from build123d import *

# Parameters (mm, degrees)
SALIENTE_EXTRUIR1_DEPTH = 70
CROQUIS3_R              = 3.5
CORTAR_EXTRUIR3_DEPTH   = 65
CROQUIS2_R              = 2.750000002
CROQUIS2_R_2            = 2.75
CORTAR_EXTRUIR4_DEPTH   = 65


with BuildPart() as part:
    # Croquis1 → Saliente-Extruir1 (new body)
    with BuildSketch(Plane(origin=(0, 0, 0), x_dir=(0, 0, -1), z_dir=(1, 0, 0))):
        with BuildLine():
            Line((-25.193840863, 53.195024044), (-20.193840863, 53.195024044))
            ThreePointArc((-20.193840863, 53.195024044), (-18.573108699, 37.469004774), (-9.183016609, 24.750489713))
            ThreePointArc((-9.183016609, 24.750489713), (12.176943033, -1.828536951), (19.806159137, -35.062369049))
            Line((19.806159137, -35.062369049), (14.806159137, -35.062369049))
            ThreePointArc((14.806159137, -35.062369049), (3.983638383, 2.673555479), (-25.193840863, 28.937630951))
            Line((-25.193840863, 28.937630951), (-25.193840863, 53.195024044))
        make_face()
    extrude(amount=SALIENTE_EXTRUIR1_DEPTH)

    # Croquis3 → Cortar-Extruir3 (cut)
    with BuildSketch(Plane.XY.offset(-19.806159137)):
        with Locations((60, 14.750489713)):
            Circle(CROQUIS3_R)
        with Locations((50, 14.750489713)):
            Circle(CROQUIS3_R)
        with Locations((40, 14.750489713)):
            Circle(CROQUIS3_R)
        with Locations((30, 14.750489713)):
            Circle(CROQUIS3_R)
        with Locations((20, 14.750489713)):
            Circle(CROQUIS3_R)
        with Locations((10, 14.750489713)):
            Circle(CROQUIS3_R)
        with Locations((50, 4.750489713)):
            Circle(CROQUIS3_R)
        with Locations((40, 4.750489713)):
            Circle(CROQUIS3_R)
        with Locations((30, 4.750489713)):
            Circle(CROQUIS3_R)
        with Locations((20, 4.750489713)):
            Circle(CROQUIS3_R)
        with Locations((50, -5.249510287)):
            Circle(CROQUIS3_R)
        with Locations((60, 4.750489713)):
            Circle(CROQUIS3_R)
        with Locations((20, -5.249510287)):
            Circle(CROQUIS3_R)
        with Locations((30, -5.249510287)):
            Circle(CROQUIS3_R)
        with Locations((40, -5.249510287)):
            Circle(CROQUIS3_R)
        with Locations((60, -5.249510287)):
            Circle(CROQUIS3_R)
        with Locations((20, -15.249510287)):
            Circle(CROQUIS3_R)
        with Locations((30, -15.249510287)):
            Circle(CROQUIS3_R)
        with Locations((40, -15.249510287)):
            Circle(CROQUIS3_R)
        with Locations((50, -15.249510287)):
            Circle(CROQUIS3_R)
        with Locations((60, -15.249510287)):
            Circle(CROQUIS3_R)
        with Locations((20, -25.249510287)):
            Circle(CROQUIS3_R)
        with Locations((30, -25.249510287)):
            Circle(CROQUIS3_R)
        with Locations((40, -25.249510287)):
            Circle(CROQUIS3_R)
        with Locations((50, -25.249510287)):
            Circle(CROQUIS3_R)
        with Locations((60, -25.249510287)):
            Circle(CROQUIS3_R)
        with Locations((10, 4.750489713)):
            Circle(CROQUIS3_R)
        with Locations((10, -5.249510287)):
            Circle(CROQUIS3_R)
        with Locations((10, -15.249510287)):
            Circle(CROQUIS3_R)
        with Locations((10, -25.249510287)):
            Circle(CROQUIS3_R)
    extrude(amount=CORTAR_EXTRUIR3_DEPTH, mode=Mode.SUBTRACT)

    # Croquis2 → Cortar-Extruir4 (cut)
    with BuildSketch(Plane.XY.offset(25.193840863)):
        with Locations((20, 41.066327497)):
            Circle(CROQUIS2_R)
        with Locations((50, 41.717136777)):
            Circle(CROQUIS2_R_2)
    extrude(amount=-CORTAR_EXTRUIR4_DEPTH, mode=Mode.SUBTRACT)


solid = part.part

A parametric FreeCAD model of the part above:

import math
import FreeCAD as App
import Part
import Sketcher

V = App.Vector
Q = App.Units.Quantity

doc = App.newDocument("Part")
params = doc.addObject("Spreadsheet::Sheet", "Params")
for row, (alias, value) in enumerate([
    ("sketch1_radius", "30 mm"),
    ("sketch1_radius2", "71.2 mm"),
    ("sketch1_radius3", "76.2 mm"),
    ("pad1_length", "70 mm"),
    ("sketch2_diameter", "7 mm"),
    ("pocket1_length", "65 mm"),
    ("sketch3_diameter", "5.5 mm"),
    ("pocket2_length", "65 mm"),
], start=1):
    params.set(f"A{row}", alias)
    params.set(f"B{row}", "=" + value)
    params.setAlias(f"B{row}", alias)

body = doc.addObject("PartDesign::Body", "Body")

sketch1 = body.newObject("Sketcher::SketchObject", "Sketch")
sketch1.AttachmentSupport = (doc.getObject("YZ_Plane"), [""])
sketch1.MapMode = "FlatFace"
sketch1.addGeometry(Part.LineSegment(V(53, 20, 0), V(53, 25, 0)), False)
sketch1.addGeometry(Part.LineSegment(V(53, 25, 0), V(29, 25, 0)), False)
sketch1.addGeometry(Part.ArcOfCircle(Part.Circle(V(-35, 56, 0), V(0, 0, 1), 71), math.radians(-90), math.radians(-26)), False)
sketch1.addGeometry(Part.LineSegment(V(-35, -15, 0), V(-35, -20, 0)), False)
sketch1.addGeometry(Part.ArcOfCircle(Part.Circle(V(-35, 56, 0), V(0, 0, 1), 76), math.radians(-90), math.radians(-38)), False)
sketch1.addGeometry(Part.ArcOfCircle(Part.Circle(V(48, -9, 0), V(0, 0, 1), 30), math.radians(81), math.radians(142)), False)
sketch1.addConstraint(Sketcher.Constraint("Coincident", 0, 2, 1, 1))
sketch1.addConstraint(Sketcher.Constraint("Coincident", 1, 2, 2, 2))
sketch1.addConstraint(Sketcher.Constraint("Coincident", 2, 1, 3, 1))
sketch1.addConstraint(Sketcher.Constraint("Coincident", 3, 2, 4, 1))
sketch1.addConstraint(Sketcher.Constraint("Tangent", 4, 2, 5, 2))
sketch1.addConstraint(Sketcher.Constraint("Coincident", 5, 1, 0, 1))
sketch1.addConstraint(Sketcher.Constraint("Vertical", 0))
sketch1.addConstraint(Sketcher.Constraint("Horizontal", 1))
sketch1.addConstraint(Sketcher.Constraint("Vertical", 3))
sketch1.addConstraint(Sketcher.Constraint("Coincident", 4, 3, 2, 3))
sketch1.addConstraint(Sketcher.Constraint("Vertical", 4, 3, 2, 1))
sketch1.addConstraint(Sketcher.Constraint("Equal", 0, 3))
sketch1.addConstraint(Sketcher.Constraint("Radius", 5, Q("30 mm")))
sketch1.addConstraint(Sketcher.Constraint("Radius", 2, Q("71.2 mm")))
sketch1.addConstraint(Sketcher.Constraint("Radius", 4, Q("76.2 mm")))
sketch1.addConstraint(Sketcher.Constraint("DistanceX", 2, 3, 1, 2, Q("64 mm")))
sketch1.addConstraint(Sketcher.Constraint("DistanceX", 1, 2, 1, 1, Q("24.257393 mm")))
sketch1.addConstraint(Sketcher.Constraint("DistanceX", 2, 3, -1, 1, Q("35.062369 mm")))
sketch1.addConstraint(Sketcher.Constraint("DistanceY", -1, 1, 2, 3, Q("56.393841 mm")))
sketch1.setExpression("Constraints[12]", "Params.sketch1_radius")
sketch1.setExpression("Constraints[13]", "Params.sketch1_radius2")
sketch1.setExpression("Constraints[14]", "Params.sketch1_radius3")
pad1 = body.newObject("PartDesign::Pad", "Pad")
pad1.Profile = sketch1
pad1.setExpression("Length", "Params.pad1_length")

sketch2 = body.newObject("Sketcher::SketchObject", "Sketch001")
sketch2.AttachmentSupport = (doc.getObject("XY_Plane"), [""])
sketch2.MapMode = "FlatFace"
sketch2.AttachmentOffset = App.Placement(V(0, 0, -19.806159), App.Rotation())
sketch2.addGeometry(Part.Circle(V(60, 14.8, 0), V(0, 0, 1), 3.5), False)
sketch2.addGeometry(Part.Circle(V(50, 14.8, 0), V(0, 0, 1), 3.5), False)
sketch2.addGeometry(Part.Circle(V(40, 14.8, 0), V(0, 0, 1), 3.5), False)
sketch2.addGeometry(Part.Circle(V(30, 14.8, 0), V(0, 0, 1), 3.5), False)
sketch2.addGeometry(Part.Circle(V(20, 14.8, 0), V(0, 0, 1), 3.5), False)
sketch2.addGeometry(Part.Circle(V(10, 14.8, 0), V(0, 0, 1), 3.5), False)
sketch2.addGeometry(Part.Circle(V(50, 4.8, 0), V(0, 0, 1), 3.5), False)
sketch2.addGeometry(Part.Circle(V(40, 4.8, 0), V(0, 0, 1), 3.5), False)
sketch2.addGeometry(Part.Circle(V(30, 4.8, 0), V(0, 0, 1), 3.5), False)
sketch2.addGeometry(Part.Circle(V(20, 4.8, 0), V(0, 0, 1), 3.5), False)
sketch2.addGeometry(Part.Circle(V(50, -5.2, 0), V(0, 0, 1), 3.5), False)
sketch2.addGeometry(Part.Circle(V(60, 4.8, 0), V(0, 0, 1), 3.5), False)
sketch2.addGeometry(Part.Circle(V(20, -5.2, 0), V(0, 0, 1), 3.5), False)
sketch2.addGeometry(Part.Circle(V(30, -5.2, 0), V(0, 0, 1), 3.5), False)
sketch2.addGeometry(Part.Circle(V(40, -5.2, 0), V(0, 0, 1), 3.5), False)
sketch2.addGeometry(Part.Circle(V(60, -5.2, 0), V(0, 0, 1), 3.5), False)
sketch2.addGeometry(Part.Circle(V(20, -15.2, 0), V(0, 0, 1), 3.5), False)
sketch2.addGeometry(Part.Circle(V(30, -15.2, 0), V(0, 0, 1), 3.5), False)
sketch2.addGeometry(Part.Circle(V(40, -15.2, 0), V(0, 0, 1), 3.5), False)
sketch2.addGeometry(Part.Circle(V(50, -15.2, 0), V(0, 0, 1), 3.5), False)
sketch2.addGeometry(Part.Circle(V(60, -15.2, 0), V(0, 0, 1), 3.5), False)
sketch2.addGeometry(Part.Circle(V(20, -25.2, 0), V(0, 0, 1), 3.5), False)
sketch2.addGeometry(Part.Circle(V(30, -25.2, 0), V(0, 0, 1), 3.5), False)
sketch2.addGeometry(Part.Circle(V(40, -25.2, 0), V(0, 0, 1), 3.5), False)
sketch2.addGeometry(Part.Circle(V(50, -25.2, 0), V(0, 0, 1), 3.5), False)
sketch2.addGeometry(Part.Circle(V(60, -25.2, 0), V(0, 0, 1), 3.5), False)
sketch2.addGeometry(Part.Circle(V(10, 4.8, 0), V(0, 0, 1), 3.5), False)
sketch2.addGeometry(Part.Circle(V(10, -5.2, 0), V(0, 0, 1), 3.5), False)
sketch2.addGeometry(Part.Circle(V(10, -15.2, 0), V(0, 0, 1), 3.5), False)
sketch2.addGeometry(Part.Circle(V(10, -25.2, 0), V(0, 0, 1), 3.5), False)
sketch2.addConstraint(Sketcher.Constraint("Equal", 0, 1))
sketch2.addConstraint(Sketcher.Constraint("Equal", 1, 2))
sketch2.addConstraint(Sketcher.Constraint("Equal", 2, 3))
sketch2.addConstraint(Sketcher.Constraint("Equal", 3, 4))
sketch2.addConstraint(Sketcher.Constraint("Equal", 4, 5))
sketch2.addConstraint(Sketcher.Constraint("Equal", 5, 6))
sketch2.addConstraint(Sketcher.Constraint("Equal", 6, 7))
sketch2.addConstraint(Sketcher.Constraint("Equal", 7, 8))
sketch2.addConstraint(Sketcher.Constraint("Equal", 8, 9))
sketch2.addConstraint(Sketcher.Constraint("Equal", 9, 10))
sketch2.addConstraint(Sketcher.Constraint("Equal", 10, 11))
sketch2.addConstraint(Sketcher.Constraint("Equal", 11, 12))
sketch2.addConstraint(Sketcher.Constraint("Equal", 12, 13))
sketch2.addConstraint(Sketcher.Constraint("Equal", 13, 14))
sketch2.addConstraint(Sketcher.Constraint("Equal", 14, 15))
sketch2.addConstraint(Sketcher.Constraint("Equal", 15, 16))
sketch2.addConstraint(Sketcher.Constraint("Equal", 16, 17))
sketch2.addConstraint(Sketcher.Constraint("Equal", 17, 18))
sketch2.addConstraint(Sketcher.Constraint("Equal", 18, 19))
sketch2.addConstraint(Sketcher.Constraint("Equal", 19, 20))
sketch2.addConstraint(Sketcher.Constraint("Equal", 20, 21))
sketch2.addConstraint(Sketcher.Constraint("Equal", 21, 22))
sketch2.addConstraint(Sketcher.Constraint("Equal", 22, 23))
sketch2.addConstraint(Sketcher.Constraint("Equal", 23, 24))
sketch2.addConstraint(Sketcher.Constraint("Equal", 24, 25))
sketch2.addConstraint(Sketcher.Constraint("Equal", 25, 26))
sketch2.addConstraint(Sketcher.Constraint("Equal", 26, 27))
sketch2.addConstraint(Sketcher.Constraint("Equal", 27, 28))
sketch2.addConstraint(Sketcher.Constraint("Equal", 28, 29))
sketch2.addConstraint(Sketcher.Constraint("Horizontal", 0, 3, 1, 3))
sketch2.addConstraint(Sketcher.Constraint("Horizontal", 1, 3, 2, 3))
sketch2.addConstraint(Sketcher.Constraint("Horizontal", 2, 3, 3, 3))
sketch2.addConstraint(Sketcher.Constraint("Horizontal", 3, 3, 4, 3))
sketch2.addConstraint(Sketcher.Constraint("Horizontal", 4, 3, 5, 3))
sketch2.addConstraint(Sketcher.Constraint("Horizontal", 6, 3, 7, 3))
sketch2.addConstraint(Sketcher.Constraint("Horizontal", 7, 3, 8, 3))
sketch2.addConstraint(Sketcher.Constraint("Horizontal", 8, 3, 9, 3))
sketch2.addConstraint(Sketcher.Constraint("Horizontal", 9, 3, 11, 3))
sketch2.addConstraint(Sketcher.Constraint("Horizontal", 10, 3, 12, 3))
sketch2.addConstraint(Sketcher.Constraint("Horizontal", 12, 3, 13, 3))
sketch2.addConstraint(Sketcher.Constraint("Horizontal", 13, 3, 14, 3))
sketch2.addConstraint(Sketcher.Constraint("Horizontal", 14, 3, 15, 3))
sketch2.addConstraint(Sketcher.Constraint("Horizontal", 16, 3, 17, 3))
sketch2.addConstraint(Sketcher.Constraint("Horizontal", 17, 3, 18, 3))
sketch2.addConstraint(Sketcher.Constraint("Horizontal", 18, 3, 19, 3))
sketch2.addConstraint(Sketcher.Constraint("Horizontal", 19, 3, 20, 3))
sketch2.addConstraint(Sketcher.Constraint("Horizontal", 21, 3, 22, 3))
sketch2.addConstraint(Sketcher.Constraint("Horizontal", 22, 3, 23, 3))
sketch2.addConstraint(Sketcher.Constraint("Horizontal", 23, 3, 24, 3))
sketch2.addConstraint(Sketcher.Constraint("Horizontal", 24, 3, 25, 3))
sketch2.addConstraint(Sketcher.Constraint("Horizontal", 11, 3, 26, 3))
sketch2.addConstraint(Sketcher.Constraint("Horizontal", 15, 3, 27, 3))
sketch2.addConstraint(Sketcher.Constraint("Horizontal", 20, 3, 28, 3))
sketch2.addConstraint(Sketcher.Constraint("Horizontal", 25, 3, 29, 3))
sketch2.addConstraint(Sketcher.Constraint("Vertical", 1, 3, 6, 3))
sketch2.addConstraint(Sketcher.Constraint("Vertical", 2, 3, 7, 3))
sketch2.addConstraint(Sketcher.Constraint("Vertical", 3, 3, 8, 3))
sketch2.addConstraint(Sketcher.Constraint("Vertical", 4, 3, 9, 3))
sketch2.addConstraint(Sketcher.Constraint("Vertical", 6, 3, 10, 3))
sketch2.addConstraint(Sketcher.Constraint("Vertical", 0, 3, 11, 3))
sketch2.addConstraint(Sketcher.Constraint("Vertical", 9, 3, 12, 3))
sketch2.addConstraint(Sketcher.Constraint("Vertical", 8, 3, 13, 3))
sketch2.addConstraint(Sketcher.Constraint("Vertical", 7, 3, 14, 3))
sketch2.addConstraint(Sketcher.Constraint("Vertical", 11, 3, 15, 3))
sketch2.addConstraint(Sketcher.Constraint("Vertical", 12, 3, 16, 3))
sketch2.addConstraint(Sketcher.Constraint("Vertical", 13, 3, 17, 3))
sketch2.addConstraint(Sketcher.Constraint("Vertical", 14, 3, 18, 3))
sketch2.addConstraint(Sketcher.Constraint("Vertical", 10, 3, 19, 3))
sketch2.addConstraint(Sketcher.Constraint("Vertical", 15, 3, 20, 3))
sketch2.addConstraint(Sketcher.Constraint("Vertical", 16, 3, 21, 3))
sketch2.addConstraint(Sketcher.Constraint("Vertical", 17, 3, 22, 3))
sketch2.addConstraint(Sketcher.Constraint("Vertical", 18, 3, 23, 3))
sketch2.addConstraint(Sketcher.Constraint("Vertical", 19, 3, 24, 3))
sketch2.addConstraint(Sketcher.Constraint("Vertical", 20, 3, 25, 3))
sketch2.addConstraint(Sketcher.Constraint("Vertical", 5, 3, 26, 3))
sketch2.addConstraint(Sketcher.Constraint("Vertical", 26, 3, 27, 3))
sketch2.addConstraint(Sketcher.Constraint("Vertical", 27, 3, 28, 3))
sketch2.addConstraint(Sketcher.Constraint("Vertical", 28, 3, 29, 3))
sketch2.addConstraint(Sketcher.Constraint("Diameter", 0, Q("7 mm")))
sketch2.addConstraint(Sketcher.Constraint("DistanceX", -1, 1, 0, 3, Q("60 mm")))
sketch2.addConstraint(Sketcher.Constraint("DistanceX", -1, 1, 1, 3, Q("50 mm")))
sketch2.addConstraint(Sketcher.Constraint("DistanceX", -1, 1, 2, 3, Q("40 mm")))
sketch2.addConstraint(Sketcher.Constraint("DistanceX", -1, 1, 3, 3, Q("30 mm")))
sketch2.addConstraint(Sketcher.Constraint("DistanceX", -1, 1, 4, 3, Q("20 mm")))
sketch2.addConstraint(Sketcher.Constraint("DistanceX", -1, 1, 5, 3, Q("10 mm")))
sketch2.addConstraint(Sketcher.Constraint("DistanceY", 6, 3, 1, 3, Q("10 mm")))
sketch2.addConstraint(Sketcher.Constraint("DistanceY", 10, 3, 6, 3, Q("10 mm")))
sketch2.addConstraint(Sketcher.Constraint("DistanceY", 16, 3, 12, 3, Q("10 mm")))
sketch2.addConstraint(Sketcher.Constraint("DistanceY", 21, 3, 16, 3, Q("10 mm")))
sketch2.addConstraint(Sketcher.Constraint("DistanceY", -1, 1, 0, 3, Q("14.75049 mm")))
sketch2.setExpression("Constraints[78]", "Params.sketch2_diameter")
pocket1 = body.newObject("PartDesign::Pocket", "Pocket")
pocket1.Profile = sketch2
pocket1.setExpression("Length", "Params.pocket1_length")
pocket1.Reversed = True

sketch3 = body.newObject("Sketcher::SketchObject", "Sketch002")
sketch3.AttachmentSupport = (doc.getObject("XY_Plane"), [""])
sketch3.MapMode = "FlatFace"
sketch3.AttachmentOffset = App.Placement(V(0, 0, 25.193841), App.Rotation())
sketch3.addGeometry(Part.Circle(V(20, 41.1, 0), V(0, 0, 1), 2.8), False)
sketch3.addGeometry(Part.Circle(V(50, 41.7, 0), V(0, 0, 1), 2.8), False)
sketch3.addConstraint(Sketcher.Constraint("Equal", 0, 1))
sketch3.addConstraint(Sketcher.Constraint("Diameter", 0, Q("5.5 mm")))
sketch3.addConstraint(Sketcher.Constraint("DistanceX", -1, 1, 0, 3, Q("20 mm")))
sketch3.addConstraint(Sketcher.Constraint("DistanceX", -1, 1, 1, 3, Q("50 mm")))
sketch3.addConstraint(Sketcher.Constraint("DistanceY", 0, 3, 1, 3, Q("0.650809 mm")))
sketch3.addConstraint(Sketcher.Constraint("DistanceY", -1, 1, 0, 3, Q("41.066327 mm")))
sketch3.setExpression("Constraints[1]", "Params.sketch3_diameter")
pocket2 = body.newObject("PartDesign::Pocket", "Pocket001")
pocket2.Profile = sketch3
pocket2.setExpression("Length", "Params.pocket2_length")

doc.recompute()
